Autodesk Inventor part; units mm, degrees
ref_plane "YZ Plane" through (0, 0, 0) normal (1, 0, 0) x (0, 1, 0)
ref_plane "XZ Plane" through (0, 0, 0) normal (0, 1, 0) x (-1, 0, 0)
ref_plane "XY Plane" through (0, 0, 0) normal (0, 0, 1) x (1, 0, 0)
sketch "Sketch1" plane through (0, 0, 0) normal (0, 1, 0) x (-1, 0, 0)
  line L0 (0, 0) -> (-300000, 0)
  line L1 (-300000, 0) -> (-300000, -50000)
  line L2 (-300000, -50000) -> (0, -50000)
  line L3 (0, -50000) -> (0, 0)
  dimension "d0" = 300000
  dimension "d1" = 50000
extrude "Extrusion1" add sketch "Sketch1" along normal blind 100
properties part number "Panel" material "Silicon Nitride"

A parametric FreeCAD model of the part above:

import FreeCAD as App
import Part
import Sketcher
Q = App.Units.Quantity

doc = App.newDocument("Part")
body = doc.addObject("PartDesign::Body", "Body")

# Sketch on XZ plane
sketch1 = body.newObject("Sketcher::SketchObject", "Sketch")
sketch1.AttachmentSupport = (doc.getObject("XZ_Plane"), [""])
sketch1.MapMode = "FlatFace"
sketch1.addGeometry([
    Part.LineSegment(App.Vector(0, -50000, 0), App.Vector(0, 0, 0)),
    Part.LineSegment(App.Vector(0, 0, 0), App.Vector(300000, 0, 0)),
    Part.LineSegment(App.Vector(300000, 0, 0), App.Vector(300000, -50000, 0)),
    Part.LineSegment(App.Vector(300000, -50000, 0), App.Vector(0, -50000, 0)),
], False)
sketch1.addConstraint([
    Sketcher.Constraint("Coincident", 0, 2, 1, 1),
    Sketcher.Constraint("Coincident", 1, 2, 2, 1),
    Sketcher.Constraint("Coincident", 2, 2, 3, 1),
    Sketcher.Constraint("Coincident", 3, 2, 0, 1),
    Sketcher.Constraint("Vertical", 0),
    Sketcher.Constraint("Horizontal", 1),
    Sketcher.Constraint("Vertical", 2),
    Sketcher.Constraint("Horizontal", 3),
    Sketcher.Constraint("Coincident", 0, 2, -1, 1),
    Sketcher.Constraint("DistanceX", 1, 1, 1, 2, Q("300000 mm")),
    Sketcher.Constraint("DistanceY", 0, 1, 0, 2, Q("50000 mm")),
])
pad1 = body.newObject("PartDesign::Pad", "Pad")
pad1.Profile = sketch1
pad1.Length = 100
pad1.Reversed = True

doc.recompute()
